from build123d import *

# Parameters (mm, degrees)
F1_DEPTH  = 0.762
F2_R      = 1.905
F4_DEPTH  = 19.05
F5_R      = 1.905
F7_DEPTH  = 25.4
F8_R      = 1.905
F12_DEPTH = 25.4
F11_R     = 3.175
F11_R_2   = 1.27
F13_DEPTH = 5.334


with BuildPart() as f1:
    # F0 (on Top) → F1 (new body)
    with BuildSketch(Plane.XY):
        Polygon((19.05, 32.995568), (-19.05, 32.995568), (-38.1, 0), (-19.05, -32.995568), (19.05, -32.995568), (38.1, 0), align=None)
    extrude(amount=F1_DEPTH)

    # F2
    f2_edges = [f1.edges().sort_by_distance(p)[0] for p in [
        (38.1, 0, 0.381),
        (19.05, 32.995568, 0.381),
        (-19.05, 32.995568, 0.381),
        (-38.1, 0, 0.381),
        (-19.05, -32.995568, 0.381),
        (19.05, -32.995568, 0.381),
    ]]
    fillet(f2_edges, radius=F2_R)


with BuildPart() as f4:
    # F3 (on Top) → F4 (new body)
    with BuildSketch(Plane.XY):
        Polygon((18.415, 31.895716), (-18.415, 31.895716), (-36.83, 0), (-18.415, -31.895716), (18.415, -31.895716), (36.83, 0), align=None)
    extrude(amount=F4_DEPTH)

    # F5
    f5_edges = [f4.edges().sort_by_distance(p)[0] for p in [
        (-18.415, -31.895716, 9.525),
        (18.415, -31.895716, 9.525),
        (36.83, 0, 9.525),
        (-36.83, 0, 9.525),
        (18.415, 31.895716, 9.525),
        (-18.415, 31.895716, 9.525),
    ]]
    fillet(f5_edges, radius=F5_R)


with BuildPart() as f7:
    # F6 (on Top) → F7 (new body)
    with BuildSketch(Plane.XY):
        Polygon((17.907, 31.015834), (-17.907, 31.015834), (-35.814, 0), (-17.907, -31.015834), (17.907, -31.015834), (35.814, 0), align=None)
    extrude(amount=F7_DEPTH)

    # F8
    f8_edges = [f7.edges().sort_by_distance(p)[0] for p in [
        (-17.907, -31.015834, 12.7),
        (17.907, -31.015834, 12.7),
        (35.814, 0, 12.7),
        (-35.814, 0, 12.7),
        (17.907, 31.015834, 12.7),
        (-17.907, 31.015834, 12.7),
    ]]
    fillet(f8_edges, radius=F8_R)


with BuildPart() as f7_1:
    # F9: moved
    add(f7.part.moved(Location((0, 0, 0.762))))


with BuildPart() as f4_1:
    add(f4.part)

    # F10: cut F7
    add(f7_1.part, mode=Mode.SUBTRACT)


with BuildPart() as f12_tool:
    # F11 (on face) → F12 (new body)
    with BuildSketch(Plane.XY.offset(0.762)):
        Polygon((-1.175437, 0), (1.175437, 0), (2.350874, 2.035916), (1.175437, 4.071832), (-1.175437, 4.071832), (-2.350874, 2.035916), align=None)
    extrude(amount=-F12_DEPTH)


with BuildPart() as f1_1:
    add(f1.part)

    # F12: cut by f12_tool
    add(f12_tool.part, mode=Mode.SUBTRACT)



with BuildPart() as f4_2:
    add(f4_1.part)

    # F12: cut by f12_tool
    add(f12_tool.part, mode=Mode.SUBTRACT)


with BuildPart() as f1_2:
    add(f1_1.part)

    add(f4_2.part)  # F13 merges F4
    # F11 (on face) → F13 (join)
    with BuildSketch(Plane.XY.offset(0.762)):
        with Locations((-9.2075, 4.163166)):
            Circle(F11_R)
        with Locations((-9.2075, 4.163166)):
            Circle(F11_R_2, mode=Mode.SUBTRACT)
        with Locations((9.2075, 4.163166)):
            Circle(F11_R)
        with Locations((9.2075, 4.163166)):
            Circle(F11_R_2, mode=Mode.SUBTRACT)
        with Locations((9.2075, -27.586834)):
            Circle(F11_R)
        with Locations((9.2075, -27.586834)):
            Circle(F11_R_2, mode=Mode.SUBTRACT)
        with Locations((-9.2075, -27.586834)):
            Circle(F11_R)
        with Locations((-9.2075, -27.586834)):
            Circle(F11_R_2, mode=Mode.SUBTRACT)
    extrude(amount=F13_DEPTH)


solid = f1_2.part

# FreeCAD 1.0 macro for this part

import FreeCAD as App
import Part
import Sketcher

V = App.Vector
Q = App.Units.Quantity


def edges_at(feature, points):
    """Names of the edges that pass closest to the given points."""
    edges = feature.Shape.Edges
    near = lambda p: min(range(len(edges)), key=lambda i: edges[i].distToShape(Part.Vertex(*p))[0])
    return sorted({f"Edge{near(p) + 1}" for p in points})


def add_polygon(sketch, points):
    """Adds a closed chain of lines whose ends are joined by coincident constraints."""
    first, n = sketch.GeometryCount, len(points)
    for a, b in zip(points, points[1:] + points[:1]):
        sketch.addGeometry(Part.LineSegment(App.Vector(*a, 0), App.Vector(*b, 0)), False)
    for i in range(n):
        sketch.addConstraint(Sketcher.Constraint("Coincident", first + i, 2, first + (i + 1) % n, 1))

doc = App.newDocument("Part")
body = doc.addObject("PartDesign::Body", "Body")

# Sketch on XY plane
sketch1 = body.newObject("Sketcher::SketchObject", "Sketch")
sketch1.AttachmentSupport = (doc.getObject("XY_Plane"), [""])
sketch1.MapMode = "FlatFace"
add_polygon(sketch1, [(19, 33), (-19, 33), (-38, 0), (-19, -33), (19, -33), (38, 0)])  # lines 0-5
sketch1.addConstraint([
    Sketcher.Constraint("Horizontal", 0),
    Sketcher.Constraint("Horizontal", 3),
    Sketcher.Constraint("Symmetric", 0, 2, 3, 2, -1, 1),
    Sketcher.Constraint("Symmetric", 1, 2, 4, 2, -1, 1),
    Sketcher.Constraint("PointOnObject", 1, 2, -1),
    Sketcher.Constraint("Parallel", 2, 5),
    Sketcher.Constraint("Vertical", 0, 2, 2, 2),
    Sketcher.Constraint("DistanceX", 0, 2, 0, 1, Q("1.5 in")),
    Sketcher.Constraint("Angle", 1, Q("-120 deg")),
    Sketcher.Constraint("DistanceX", 1, 2, 4, 2, Q("3 in")),
])
pad1 = body.newObject("PartDesign::Pad", "Pad")
pad1.Profile = sketch1
pad1.Length = Q("0.03 in")
doc.recompute()

fillet = body.newObject("PartDesign::Fillet", "Fillet")
fillet.Base = (pad1, edges_at(pad1, [
    (38.1, 0, 0.381),
    (19.05, 32.996, 0.381),
    (-19.05, 32.996, 0.381),
    (-38.1, 0, 0.381),
    (-19.05, -32.996, 0.381),
    (19.05, -32.996, 0.381),
]))
fillet.Radius = Q("0.075 in")
body2 = doc.addObject("PartDesign::Body", "Body001")

# Sketch on XY plane
sketch2 = body2.newObject("Sketcher::SketchObject", "Sketch001")
sketch2.AttachmentSupport = (doc.getObject("XY_Plane001"), [""])
sketch2.MapMode = "FlatFace"
add_polygon(sketch2, [(18, 32), (-18, 32), (-37, 0), (-18, -32), (18, -32), (37, 0)])  # lines 0-5
sketch2.addConstraint([
    Sketcher.Constraint("Horizontal", 0),
    Sketcher.Constraint("Horizontal", 3),
    Sketcher.Constraint("Symmetric", 0, 2, 3, 2, -1, 1),
    Sketcher.Constraint("Symmetric", 1, 2, 4, 2, -1, 1),
    Sketcher.Constraint("PointOnObject", 1, 2, -1),
    Sketcher.Constraint("Parallel", 2, 5),
    Sketcher.Constraint("Vertical", 0, 2, 2, 2),
    Sketcher.Constraint("Angle", 1, Q("-120 deg")),
    Sketcher.Constraint("DistanceX", 0, 2, 0, 1, Q("1.45 in")),
    Sketcher.Constraint("DistanceX", 1, 2, 4, 2, Q("2.9 in")),
])
pad2 = body2.newObject("PartDesign::Pad", "Pad001")
pad2.Profile = sketch2
pad2.Length = Q("0.75 in")
doc.recompute()

fillet2 = body2.newObject("PartDesign::Fillet", "Fillet001")
fillet2.Base = (pad2, edges_at(pad2, [
    (-18.415, -31.896, 9.525),
    (18.415, -31.896, 9.525),
    (36.83, 0, 9.525),
    (-36.83, 0, 9.525),
    (18.415, 31.896, 9.525),
    (-18.415, 31.896, 9.525),
]))
fillet2.Radius = Q("0.075 in")
body3 = doc.addObject("PartDesign::Body", "Body002")

# Sketch on XY plane
sketch3 = body3.newObject("Sketcher::SketchObject", "Sketch002")
sketch3.AttachmentSupport = (doc.getObject("XY_Plane002"), [""])
sketch3.MapMode = "FlatFace"
add_polygon(sketch3, [(18, 31), (-18, 31), (-36, 0), (-18, -31), (18, -31), (36, 0)])  # lines 0-5
sketch3.addConstraint([
    Sketcher.Constraint("Horizontal", 0),
    Sketcher.Constraint("Horizontal", 3),
    Sketcher.Constraint("Symmetric", 0, 2, 3, 2, -1, 1),
    Sketcher.Constraint("Symmetric", 1, 2, 4, 2, -1, 1),
    Sketcher.Constraint("PointOnObject", 1, 2, -1),
    Sketcher.Constraint("Parallel", 2, 5),
    Sketcher.Constraint("Vertical", 0, 2, 2, 2),
    Sketcher.Constraint("Angle", 1, Q("-120 deg")),
    Sketcher.Constraint("DistanceX", 0, 2, 0, 1, Q("1.41 in")),
    Sketcher.Constraint("Distance", 1, Q("1.41 in")),
])
pad3 = body3.newObject("PartDesign::Pad", "Pad002")
pad3.Profile = sketch3
pad3.Length = Q("1 in")
doc.recompute()

fillet3 = body3.newObject("PartDesign::Fillet", "Fillet002")
fillet3.Base = (pad3, edges_at(pad3, [
    (-17.907, -31.016, 12.7),
    (17.907, -31.016, 12.7),
    (35.814, 0, 12.7),
    (-35.814, 0, 12.7),
    (17.907, 31.016, 12.7),
    (-17.907, 31.016, 12.7),
]))
fillet3.Radius = Q("0.075 in")
body4 = doc.addObject("PartDesign::Body", "Body003")
doc.recompute()

body3.Placement = App.Placement(V(0, 0, 0.762), App.Rotation(V(0, 0, 1), 0))
boolean = body4.newObject("PartDesign::Boolean", "Boolean")
boolean.Type = "Fuse"
boolean.addObjects([body3])
doc.recompute()

boolean2 = body2.newObject("PartDesign::Boolean", "Boolean001")
boolean2.Type = "Cut"
boolean2.addObjects([body4])
body5 = doc.addObject("PartDesign::Body", "Body004")

# Sketch on XY plane
sketch4 = body5.newObject("Sketcher::SketchObject", "Sketch003")
sketch4.AttachmentSupport = (doc.getObject("XY_Plane004"), [""])
sketch4.MapMode = "FlatFace"
sketch4.AttachmentOffset = App.Placement(V(0, 0, 0.03 * 25.4), App.Rotation())
add_polygon(sketch4, [(-1.2, 0), (1.2, 0), (2.4, 2), (1.2, 4.1), (-1.2, 4.1), (-2.4, 2)])  # lines 0-5
sketch4.addConstraint([
    Sketcher.Constraint("Horizontal", 0),
    Sketcher.Constraint("Horizontal", 3),
    Sketcher.Constraint("Symmetric", 0, 2, 5, 2, -1, 1),
    Sketcher.Constraint("Symmetric", 1, 2, 4, 2, -2),
    Sketcher.Constraint("Parallel", 1, 4),
    Sketcher.Constraint("Parallel", 2, 5),
    Sketcher.Constraint("Vertical", 0, 2, 2, 2),
    Sketcher.Constraint("Angle", 1, Q("59.999993 deg")),
    Sketcher.Constraint("DistanceX", 0, 1, 0, 2, 2.350874),
    Sketcher.Constraint("DistanceY", -1, 1, 2, 2, 4.071832),
])
pad4 = body5.newObject("PartDesign::Pad", "Pad003")
pad4.Profile = sketch4
pad4.Length = Q("1 in")
pad4.Reversed = True
doc.recompute()

body6 = doc.addObject("PartDesign::Body", "Body005")
body6.BaseFeature = body5
boolean3 = body.newObject("PartDesign::Boolean", "Boolean002")
boolean3.Type = "Cut"
boolean3.addObjects([body6])
doc.recompute()

boolean4 = body2.newObject("PartDesign::Boolean", "Boolean003")
boolean4.Type = "Cut"
boolean4.addObjects([body5])
doc.recompute()

boolean5 = body.newObject("PartDesign::Boolean", "Boolean004")
boolean5.Type = "Fuse"
boolean5.addObjects([body2])

# Sketch on XY plane
sketch5 = body.newObject("Sketcher::SketchObject", "Sketch004")
sketch5.AttachmentSupport = (doc.getObject("XY_Plane"), [""])
sketch5.MapMode = "FlatFace"
sketch5.AttachmentOffset = App.Placement(V(0, 0, 0.03 * 25.4), App.Rotation())
sketch5.addGeometry([
    Part.Circle(V(-9.2, 4.2, 0), V(0, 0, 1), 3.2),  # 0
    Part.Circle(V(-9.2, 4.2, 0), V(0, 0, 1), 1.3),  # 1
    Part.Circle(V(9.2, 4.2, 0), V(0, 0, 1), 3.2),  # 2
    Part.Circle(V(9.2, 4.2, 0), V(0, 0, 1), 1.3),  # 3
    Part.Circle(V(9.2, -27.6, 0), V(0, 0, 1), 3.2),  # 4
    Part.Circle(V(9.2, -27.6, 0), V(0, 0, 1), 1.3),  # 5
    Part.Circle(V(-9.2, -27.6, 0), V(0, 0, 1), 3.2),  # 6
    Part.Circle(V(-9.2, -27.6, 0), V(0, 0, 1), 1.3),  # 7
], False)
sketch5.addConstraint([
    Sketcher.Constraint("Coincident", 1, 3, 0, 3),
    Sketcher.Constraint("Coincident", 3, 3, 2, 3),
    Sketcher.Constraint("Coincident", 5, 3, 4, 3),
    Sketcher.Constraint("Coincident", 7, 3, 6, 3),
    Sketcher.Constraint("Equal", 0, 2),
    Sketcher.Constraint("Equal", 1, 3),
    Sketcher.Constraint("Equal", 2, 4),
    Sketcher.Constraint("Equal", 3, 5),
    Sketcher.Constraint("Equal", 4, 6),
    Sketcher.Constraint("Equal", 5, 7),
    Sketcher.Constraint("Symmetric", 0, 3, 2, 3, -2),
    Sketcher.Constraint("Symmetric", 4, 3, 6, 3, -2),
    Sketcher.Constraint("Vertical", 3, 3, 4, 3),
    Sketcher.Constraint("Diameter", 1, Q("0.1 in")),
    Sketcher.Constraint("Diameter", 0, Q("0.25 in")),
    Sketcher.Constraint("DistanceY", 4, 3, 2, 3, Q("1.25 in")),
    Sketcher.Constraint("DistanceX", 0, 3, 2, 3, Q("0.725 in")),
    Sketcher.Constraint("DistanceY", -1, 1, 0, 3, 4.163166),
])
pad5 = body.newObject("PartDesign::Pad", "Pad004")
pad5.Profile = sketch5
pad5.Length = Q("0.21 in")

doc.recompute()
